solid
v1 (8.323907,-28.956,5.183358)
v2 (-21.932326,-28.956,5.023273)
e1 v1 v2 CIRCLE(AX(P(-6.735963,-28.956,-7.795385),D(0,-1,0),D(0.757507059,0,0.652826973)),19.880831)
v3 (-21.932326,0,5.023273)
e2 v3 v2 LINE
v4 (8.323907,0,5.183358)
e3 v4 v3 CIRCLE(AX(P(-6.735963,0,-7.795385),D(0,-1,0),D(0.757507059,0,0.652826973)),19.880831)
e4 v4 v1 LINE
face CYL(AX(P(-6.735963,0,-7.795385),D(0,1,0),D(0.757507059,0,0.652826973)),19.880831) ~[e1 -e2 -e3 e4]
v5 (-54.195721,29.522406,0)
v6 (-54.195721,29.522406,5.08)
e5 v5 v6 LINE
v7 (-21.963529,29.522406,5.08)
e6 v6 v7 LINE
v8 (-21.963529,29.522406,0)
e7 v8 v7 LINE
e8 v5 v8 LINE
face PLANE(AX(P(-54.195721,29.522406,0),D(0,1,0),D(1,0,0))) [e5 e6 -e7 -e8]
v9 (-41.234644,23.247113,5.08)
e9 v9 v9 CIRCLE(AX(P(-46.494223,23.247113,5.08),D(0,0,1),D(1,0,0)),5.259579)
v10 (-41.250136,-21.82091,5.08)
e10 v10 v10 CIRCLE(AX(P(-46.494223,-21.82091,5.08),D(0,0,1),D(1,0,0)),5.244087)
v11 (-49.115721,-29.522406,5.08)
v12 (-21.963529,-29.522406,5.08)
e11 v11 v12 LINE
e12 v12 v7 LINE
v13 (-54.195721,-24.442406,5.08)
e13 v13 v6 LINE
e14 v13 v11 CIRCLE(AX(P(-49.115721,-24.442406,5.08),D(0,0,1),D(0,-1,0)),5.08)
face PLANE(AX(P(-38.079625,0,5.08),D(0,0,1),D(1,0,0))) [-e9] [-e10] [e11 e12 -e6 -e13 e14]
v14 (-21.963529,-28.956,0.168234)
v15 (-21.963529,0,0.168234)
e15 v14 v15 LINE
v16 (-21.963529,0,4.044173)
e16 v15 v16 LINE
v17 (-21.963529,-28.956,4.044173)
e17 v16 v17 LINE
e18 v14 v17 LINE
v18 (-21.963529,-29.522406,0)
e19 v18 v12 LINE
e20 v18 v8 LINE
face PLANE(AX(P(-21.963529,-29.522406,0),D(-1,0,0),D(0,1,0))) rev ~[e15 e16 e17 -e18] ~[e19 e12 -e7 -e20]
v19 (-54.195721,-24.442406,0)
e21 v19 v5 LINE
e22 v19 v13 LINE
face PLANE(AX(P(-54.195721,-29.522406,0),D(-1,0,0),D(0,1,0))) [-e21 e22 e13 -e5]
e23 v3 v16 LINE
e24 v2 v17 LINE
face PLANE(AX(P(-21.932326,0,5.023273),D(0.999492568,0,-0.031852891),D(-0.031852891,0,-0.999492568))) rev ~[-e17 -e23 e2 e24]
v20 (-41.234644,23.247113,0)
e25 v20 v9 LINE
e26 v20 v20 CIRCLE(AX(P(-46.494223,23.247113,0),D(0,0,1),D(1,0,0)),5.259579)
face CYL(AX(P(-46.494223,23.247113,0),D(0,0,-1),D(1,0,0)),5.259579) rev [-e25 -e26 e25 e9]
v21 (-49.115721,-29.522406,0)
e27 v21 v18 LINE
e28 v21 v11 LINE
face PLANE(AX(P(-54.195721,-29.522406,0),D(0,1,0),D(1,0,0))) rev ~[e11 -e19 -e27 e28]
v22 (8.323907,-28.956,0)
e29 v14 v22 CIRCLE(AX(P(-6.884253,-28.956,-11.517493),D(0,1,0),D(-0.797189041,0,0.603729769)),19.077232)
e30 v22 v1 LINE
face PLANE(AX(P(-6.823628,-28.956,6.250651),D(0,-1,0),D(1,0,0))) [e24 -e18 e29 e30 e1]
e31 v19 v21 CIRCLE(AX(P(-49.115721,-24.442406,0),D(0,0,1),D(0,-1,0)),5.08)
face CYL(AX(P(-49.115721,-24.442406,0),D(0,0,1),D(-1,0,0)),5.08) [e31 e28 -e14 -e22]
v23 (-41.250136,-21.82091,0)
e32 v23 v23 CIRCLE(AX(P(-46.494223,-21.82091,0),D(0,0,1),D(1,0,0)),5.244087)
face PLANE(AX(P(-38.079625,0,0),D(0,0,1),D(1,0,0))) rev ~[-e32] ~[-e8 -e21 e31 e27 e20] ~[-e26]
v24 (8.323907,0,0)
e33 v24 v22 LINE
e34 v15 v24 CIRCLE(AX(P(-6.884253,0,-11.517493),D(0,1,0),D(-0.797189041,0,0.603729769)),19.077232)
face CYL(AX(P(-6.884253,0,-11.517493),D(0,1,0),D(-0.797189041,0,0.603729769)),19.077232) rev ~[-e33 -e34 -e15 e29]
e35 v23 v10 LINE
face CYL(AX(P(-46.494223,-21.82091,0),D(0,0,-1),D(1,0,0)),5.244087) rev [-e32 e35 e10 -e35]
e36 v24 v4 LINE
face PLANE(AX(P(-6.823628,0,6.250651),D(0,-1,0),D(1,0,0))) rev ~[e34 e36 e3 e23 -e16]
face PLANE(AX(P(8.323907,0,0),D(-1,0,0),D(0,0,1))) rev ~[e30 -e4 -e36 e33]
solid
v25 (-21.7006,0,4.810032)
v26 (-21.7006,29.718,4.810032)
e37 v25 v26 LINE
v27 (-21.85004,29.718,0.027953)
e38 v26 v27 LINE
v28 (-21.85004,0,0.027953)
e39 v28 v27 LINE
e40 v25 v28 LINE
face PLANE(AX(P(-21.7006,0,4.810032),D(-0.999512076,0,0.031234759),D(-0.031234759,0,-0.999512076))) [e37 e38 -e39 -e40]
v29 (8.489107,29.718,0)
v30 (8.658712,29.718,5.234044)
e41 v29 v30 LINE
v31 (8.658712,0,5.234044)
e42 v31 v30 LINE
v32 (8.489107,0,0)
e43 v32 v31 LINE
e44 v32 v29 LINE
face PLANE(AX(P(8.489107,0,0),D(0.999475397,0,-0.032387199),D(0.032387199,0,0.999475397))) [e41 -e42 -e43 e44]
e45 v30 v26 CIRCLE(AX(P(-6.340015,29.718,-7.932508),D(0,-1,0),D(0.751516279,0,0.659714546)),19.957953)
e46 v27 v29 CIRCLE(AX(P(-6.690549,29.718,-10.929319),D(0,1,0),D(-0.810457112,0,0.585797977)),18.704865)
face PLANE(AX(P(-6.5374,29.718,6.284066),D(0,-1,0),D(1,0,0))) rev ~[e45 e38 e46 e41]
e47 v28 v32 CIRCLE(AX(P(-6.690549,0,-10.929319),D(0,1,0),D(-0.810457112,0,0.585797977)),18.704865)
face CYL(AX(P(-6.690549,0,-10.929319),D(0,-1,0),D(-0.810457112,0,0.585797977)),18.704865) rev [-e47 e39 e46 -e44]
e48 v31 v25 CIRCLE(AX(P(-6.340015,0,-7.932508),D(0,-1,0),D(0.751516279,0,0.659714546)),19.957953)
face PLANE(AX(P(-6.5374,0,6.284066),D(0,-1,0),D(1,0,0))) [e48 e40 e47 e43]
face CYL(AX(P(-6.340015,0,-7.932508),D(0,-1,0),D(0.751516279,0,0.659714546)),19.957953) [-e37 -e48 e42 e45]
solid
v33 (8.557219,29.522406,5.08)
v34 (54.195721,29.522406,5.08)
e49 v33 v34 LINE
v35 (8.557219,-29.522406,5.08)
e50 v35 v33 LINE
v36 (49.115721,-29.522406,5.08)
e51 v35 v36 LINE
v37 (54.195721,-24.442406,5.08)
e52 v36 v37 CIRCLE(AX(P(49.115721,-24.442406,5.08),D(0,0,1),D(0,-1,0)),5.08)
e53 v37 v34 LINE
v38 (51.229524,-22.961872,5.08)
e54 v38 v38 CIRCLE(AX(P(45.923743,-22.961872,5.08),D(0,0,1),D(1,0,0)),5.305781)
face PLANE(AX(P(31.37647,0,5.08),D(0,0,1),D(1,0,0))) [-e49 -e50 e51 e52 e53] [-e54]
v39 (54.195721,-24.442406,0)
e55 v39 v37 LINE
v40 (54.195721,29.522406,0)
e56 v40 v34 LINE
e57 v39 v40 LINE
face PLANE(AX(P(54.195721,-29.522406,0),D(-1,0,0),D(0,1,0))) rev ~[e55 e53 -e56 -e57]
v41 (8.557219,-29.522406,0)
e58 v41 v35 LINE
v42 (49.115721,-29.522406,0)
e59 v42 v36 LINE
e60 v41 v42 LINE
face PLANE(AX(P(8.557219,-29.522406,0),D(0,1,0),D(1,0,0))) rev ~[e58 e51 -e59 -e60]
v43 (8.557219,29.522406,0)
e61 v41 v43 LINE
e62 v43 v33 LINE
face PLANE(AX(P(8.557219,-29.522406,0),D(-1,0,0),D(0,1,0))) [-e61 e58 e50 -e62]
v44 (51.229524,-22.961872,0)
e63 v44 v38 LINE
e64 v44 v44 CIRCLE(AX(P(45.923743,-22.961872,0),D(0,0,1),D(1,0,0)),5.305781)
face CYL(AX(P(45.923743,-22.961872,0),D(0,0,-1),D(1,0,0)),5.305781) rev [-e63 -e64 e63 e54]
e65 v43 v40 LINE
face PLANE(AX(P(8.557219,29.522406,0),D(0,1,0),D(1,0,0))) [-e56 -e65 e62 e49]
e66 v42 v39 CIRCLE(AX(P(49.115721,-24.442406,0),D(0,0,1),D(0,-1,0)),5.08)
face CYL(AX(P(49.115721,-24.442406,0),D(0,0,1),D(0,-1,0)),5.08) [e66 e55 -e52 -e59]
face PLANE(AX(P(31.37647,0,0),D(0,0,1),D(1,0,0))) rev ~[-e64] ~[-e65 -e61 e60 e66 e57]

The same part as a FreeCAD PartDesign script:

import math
import FreeCAD as App
import Part
import Sketcher
from FreeCAD import Vector
Q = App.Units.Quantity


def edges_at(feature, points):
    """Names of the edges that pass closest to the given points."""
    edges = feature.Shape.Edges
    near = lambda p: min(range(len(edges)), key=lambda i: edges[i].distToShape(Part.Vertex(*p))[0])
    return sorted({f"Edge{near(p) + 1}" for p in points})


def add_polygon(sketch, points):
    """Adds a closed chain of lines whose ends are joined by coincident constraints."""
    first, n = sketch.GeometryCount, len(points)
    for a, b in zip(points, points[1:] + points[:1]):
        sketch.addGeometry(Part.LineSegment(App.Vector(*a, 0), App.Vector(*b, 0)), False)
    for i in range(n):
        sketch.addConstraint(Sketcher.Constraint("Coincident", first + i, 2, first + (i + 1) % n, 1))

doc = App.newDocument("Part")
body = doc.addObject("PartDesign::Body", "Body")
body.AllowCompound = True

# Sketch on XY plane
sketch1 = doc.addObject("Sketcher::SketchObject", "Sketch")
body.addObject(sketch1)
sketch1.AttachmentSupport = (doc.XY_Plane, [""])
sketch1.MapMode = "FlatFace"
add_polygon(sketch1, [(-54.195721, 29.522406), (-54.195721, -29.522406), (-21.963529, -29.522406), (-21.963529, 29.522406)])  # lines 0-3
sketch1.addGeometry(Part.Circle(Vector(-46.494223, -21.82091, 0), Vector(0, 0, 1), 5.244087), False)  # 4
sketch1.addGeometry(Part.Circle(Vector(-46.494223, 23.247113, 0), Vector(0, 0, 1), 5.259579), False)  # 5
add_polygon(sketch1, [(8.557219, 29.522406), (8.557219, -29.522406), (54.195721, -29.522406), (54.195721, 29.522406)])  # lines 6-9
sketch1.addGeometry(Part.Circle(Vector(45.923743, -22.961872, 0), Vector(0, 0, 1), 5.305781), False)  # 10
sketch1.addConstraint(Sketcher.Constraint("Vertical", 0))
sketch1.addConstraint(Sketcher.Constraint("Horizontal", 1))
sketch1.addConstraint(Sketcher.Constraint("Vertical", 2))
sketch1.addConstraint(Sketcher.Constraint("Horizontal", 3))
sketch1.addConstraint(Sketcher.Constraint("Vertical", 6))
sketch1.addConstraint(Sketcher.Constraint("Horizontal", 7))
sketch1.addConstraint(Sketcher.Constraint("Vertical", 8))
sketch1.addConstraint(Sketcher.Constraint("Horizontal", 9))
sketch1.addConstraint(Sketcher.Constraint("Symmetric", 3, 2, 7, 2, -1, 1))
sketch1.addConstraint(Sketcher.Constraint("Horizontal", 1, 2, 6, 2))
sketch1.addConstraint(Sketcher.Constraint("Horizontal", 3, 2, 8, 2))
sketch1.addConstraint(Sketcher.Constraint("Vertical", 4, 3, 5, 3))
sketch1.addConstraint(Sketcher.Constraint("Diameter", 10, Q("10.611562 mm")))
sketch1.addConstraint(Sketcher.Constraint("Diameter", 4, Q("10.488174 mm")))
sketch1.addConstraint(Sketcher.Constraint("Diameter", 5, Q("10.519158 mm")))
sketch1.addConstraint(Sketcher.Constraint("DistanceX", 1, 1, 1, 2, Q("32.232192 mm")))
sketch1.addConstraint(Sketcher.Constraint("DistanceX", 0, 2, 4, 3, Q("7.701498 mm")))
sketch1.addConstraint(Sketcher.Constraint("DistanceX", 7, 1, 7, 2, Q("45.638502 mm")))
sketch1.addConstraint(Sketcher.Constraint("DistanceY", 0, 2, 0, 1, Q("59.044812 mm")))
sketch1.addConstraint(Sketcher.Constraint("DistanceY", 4, 3, -1, 1, Q("21.82091 mm")))
sketch1.addConstraint(Sketcher.Constraint("DistanceY", 10, 3, -1, 1, Q("22.961872 mm")))
sketch1.addConstraint(Sketcher.Constraint("DistanceX", 0, 2, -1, 1, Q("54.195721 mm")))
sketch1.addConstraint(Sketcher.Constraint("DistanceY", 0, 2, 5, 3, Q("52.769519 mm")))
sketch1.addConstraint(Sketcher.Constraint("DistanceX", 1, 2, 10, 3, Q("67.887272 mm")))
pad1 = doc.addObject("PartDesign::Pad", "Pad")
body.addObject(pad1)
pad1.Profile = sketch1
pad1.Length = Q("0.2 in")
doc.recompute()

fillet = doc.addObject("PartDesign::Fillet", "Fillet")
body.addObject(fillet)
fillet.Base = (pad1, edges_at(pad1, [(-54.196, -29.522, 2.54), (54.196, -29.522, 2.54)]))
fillet.Radius = Q("0.2 in")

# Sketch on XZ plane
sketch2 = doc.addObject("Sketcher::SketchObject", "Sketch001")
body.addObject(sketch2)
sketch2.AttachmentSupport = (doc.XZ_Plane, [""])
sketch2.MapMode = "FlatFace"
sketch2.addGeometry(Part.ArcOfCircle(Part.Circle(Vector(-6.884253, -11.517493, 0), Vector(0, 0, 1), 19.077232), math.radians(37.137492), math.radians(142.862508)), False)
sketch2.addGeometry(Part.LineSegment(Vector(8.323907, 0, 0), Vector(8.323907, 5.183358, 0)), False)
sketch2.addGeometry(Part.ArcOfCircle(Part.Circle(Vector(-6.735963, -7.795385, 0), Vector(0, 0, 1), 19.880831), math.radians(40.755084), math.radians(139.851211)), False)
sketch2.addGeometry(Part.LineSegment(Vector(-21.932326, 5.023273, 0), Vector(-22.092413, 0, 0)), False)
sketch2.addConstraint(Sketcher.Constraint("Coincident", 0, 1, 1, 1))
sketch2.addConstraint(Sketcher.Constraint("Coincident", 1, 2, 2, 1))
sketch2.addConstraint(Sketcher.Constraint("Coincident", 2, 2, 3, 1))
sketch2.addConstraint(Sketcher.Constraint("Coincident", 3, 2, 0, 2))
sketch2.addConstraint(Sketcher.Constraint("Vertical", 1))
sketch2.addConstraint(Sketcher.Constraint("PointOnObject", 0, 1, -1))
sketch2.addConstraint(Sketcher.Constraint("PointOnObject", 3, 2, -1))
sketch2.addConstraint(Sketcher.Constraint("Radius", 0, Q("19.077232 mm")))
sketch2.addConstraint(Sketcher.Constraint("Radius", 2, Q("19.880831 mm")))
sketch2.addConstraint(Sketcher.Constraint("DistanceY", 1, 1, 1, 2, Q("5.183358 mm")))
sketch2.addConstraint(Sketcher.Constraint("DistanceX", 0, 3, 2, 3, Q("0.14829 mm")))
sketch2.addConstraint(Sketcher.Constraint("DistanceX", 2, 3, 0, 1, Q("15.05987 mm")))
sketch2.addConstraint(Sketcher.Constraint("Distance", 3, Q("5.025823 mm")))
sketch2.addConstraint(Sketcher.Constraint("DistanceX", 0, 3, -1, 1, Q("6.884253 mm")))
pad2 = doc.addObject("PartDesign::Pad", "Pad001")
body.addObject(pad2)
pad2.Profile = sketch2
pad2.Length = Q("1.14 in")
body2 = doc.addObject("PartDesign::Body", "Body001")

# Sketch on XZ plane
sketch3 = doc.addObject("Sketcher::SketchObject", "Sketch002")
body2.addObject(sketch3)
sketch3.AttachmentSupport = (doc.getObject("XZ_Plane001"), [""])
sketch3.MapMode = "FlatFace"
sketch3.addGeometry(Part.LineSegment(Vector(8.489107, 0, 0), Vector(8.658712, 5.234044, 0)), False)
sketch3.addGeometry(Part.ArcOfCircle(Part.Circle(Vector(-6.340015, -7.932508, 0), Vector(0, 0, 1), 19.957953), math.radians(41.278106), math.radians(140.322228)), False)
sketch3.addGeometry(Part.LineSegment(Vector(-21.7006, 4.810032, 0), Vector(-21.85004, 0.027953, 0)), False)
sketch3.addGeometry(Part.ArcOfCircle(Part.Circle(Vector(-6.690549, -10.929319, 0), Vector(0, 0, 1), 18.704865), math.radians(35.753804), math.radians(144.140617)), False)
sketch3.addConstraint(Sketcher.Constraint("Coincident", 0, 2, 1, 1))
sketch3.addConstraint(Sketcher.Constraint("Coincident", 1, 2, 2, 1))
sketch3.addConstraint(Sketcher.Constraint("Coincident", 2, 2, 3, 2))
sketch3.addConstraint(Sketcher.Constraint("Coincident", 3, 1, 0, 1))
sketch3.addConstraint(Sketcher.Constraint("PointOnObject", 3, 1, -1))
sketch3.addConstraint(Sketcher.Constraint("Radius", 1, Q("19.957953 mm")))
sketch3.addConstraint(Sketcher.Constraint("Radius", 3, Q("18.704865 mm")))
sketch3.addConstraint(Sketcher.Constraint("DistanceX", 1, 2, -1, 1, Q("21.7006 mm")))
sketch3.addConstraint(Sketcher.Constraint("Distance", 0, Q("5.236791 mm")))
sketch3.addConstraint(Sketcher.Constraint("DistanceY", 1, 3, -1, 1, Q("7.932508 mm")))
sketch3.addConstraint(Sketcher.Constraint("DistanceX", 3, 3, -1, 1, Q("6.690549 mm")))
sketch3.addConstraint(Sketcher.Constraint("DistanceY", 3, 3, -1, 1, Q("10.929319 mm")))
sketch3.addConstraint(Sketcher.Constraint("DistanceX", 2, 2, -1, 1, Q("21.85004 mm")))
sketch3.addConstraint(Sketcher.Constraint("DistanceX", 3, 3, 0, 2, Q("15.349261 mm")))
pad3 = doc.addObject("PartDesign::Pad", "Pad002")
body2.addObject(pad3)
pad3.Profile = sketch3
pad3.Length = Q("1.17 in")
pad3.Reversed = True

doc.recompute()
